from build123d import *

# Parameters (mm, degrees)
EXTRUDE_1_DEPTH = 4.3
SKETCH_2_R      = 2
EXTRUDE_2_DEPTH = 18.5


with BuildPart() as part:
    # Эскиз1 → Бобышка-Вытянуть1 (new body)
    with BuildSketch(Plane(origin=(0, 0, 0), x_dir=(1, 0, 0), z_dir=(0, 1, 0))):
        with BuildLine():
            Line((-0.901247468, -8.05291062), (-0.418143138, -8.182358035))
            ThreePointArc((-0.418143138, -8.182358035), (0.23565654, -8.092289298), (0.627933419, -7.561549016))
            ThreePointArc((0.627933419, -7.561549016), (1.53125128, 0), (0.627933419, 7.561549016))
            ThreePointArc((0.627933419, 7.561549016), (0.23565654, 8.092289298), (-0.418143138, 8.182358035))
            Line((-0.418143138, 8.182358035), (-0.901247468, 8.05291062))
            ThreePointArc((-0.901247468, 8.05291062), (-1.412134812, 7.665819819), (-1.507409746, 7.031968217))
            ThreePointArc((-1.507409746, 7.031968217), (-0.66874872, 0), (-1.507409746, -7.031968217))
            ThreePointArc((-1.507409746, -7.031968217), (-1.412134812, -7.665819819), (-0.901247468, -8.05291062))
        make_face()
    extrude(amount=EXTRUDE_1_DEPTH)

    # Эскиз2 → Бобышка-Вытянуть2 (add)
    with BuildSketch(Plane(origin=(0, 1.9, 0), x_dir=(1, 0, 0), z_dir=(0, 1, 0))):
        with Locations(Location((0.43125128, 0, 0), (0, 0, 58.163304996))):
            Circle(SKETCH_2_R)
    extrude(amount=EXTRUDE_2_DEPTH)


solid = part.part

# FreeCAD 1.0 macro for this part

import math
import FreeCAD as App
import Part
import Sketcher
from FreeCAD import Vector
Q = App.Units.Quantity

doc = App.newDocument("Part")
params = doc.addObject("Spreadsheet::Sheet", "Params")
for row, (alias, value) in enumerate([
    ("sketch1_radius", "32.1 mm"),
    ("sketch1_radius2", "29.9 mm"),
    ("sketch1_radius3", "0.85 mm"),
    ("pad1_length", "4.3 mm"),
    ("sketch2_diameter", "4 mm"),
    ("pad2_length", "18.5 mm"),
], start=1):
    params.set(f"A{row}", alias)
    params.set(f"B{row}", "=" + value)
    params.setAlias(f"B{row}", alias)

body = doc.addObject("PartDesign::Body", "Body")

# Sketch on XZ plane
sketch1 = body.newObject("Sketcher::SketchObject", "Sketch")
sketch1.AttachmentSupport = (doc.getObject("XZ_Plane"), [""])
sketch1.MapMode = "FlatFace"
sketch1.addGeometry(Part.LineSegment(Vector(-0.9, 8.1, 0), Vector(-0.4, 8.2, 0)), False)
sketch1.addGeometry(Part.ArcOfCircle(Part.Circle(Vector(-0.2, 7.4, 0), Vector(0, 0, 1), 0.9), math.radians(14), math.radians(105)), False)
sketch1.addGeometry(Part.ArcOfCircle(Part.Circle(Vector(-30.6, 0, 0), Vector(0, 0, 1), 32.1), math.radians(-14), math.radians(14)), False)
sketch1.addGeometry(Part.ArcOfCircle(Part.Circle(Vector(-0.2, -7.4, 0), Vector(0, 0, 1), 0.9), math.radians(-105), math.radians(-14)), False)
sketch1.addGeometry(Part.LineSegment(Vector(-0.4, -8.2, 0), Vector(-0.9, -8.1, 0)), False)
sketch1.addGeometry(Part.ArcOfCircle(Part.Circle(Vector(-0.7, -7.2, 0), Vector(0, 0, 1), 0.9), math.radians(166), math.radians(255)), False)
sketch1.addGeometry(Part.ArcOfCircle(Part.Circle(Vector(-30.6, 0, 0), Vector(0, 0, 1), 29.9), math.radians(-14), math.radians(14)), False)
sketch1.addGeometry(Part.ArcOfCircle(Part.Circle(Vector(-0.7, 7.2, 0), Vector(0, 0, 1), 0.9), math.radians(105), math.radians(194)), False)
sketch1.addConstraint(Sketcher.Constraint("Tangent", 0, 2, 1, 2))
sketch1.addConstraint(Sketcher.Constraint("Tangent", 1, 1, 2, 2))
sketch1.addConstraint(Sketcher.Constraint("Tangent", 2, 1, 3, 2))
sketch1.addConstraint(Sketcher.Constraint("Tangent", 3, 1, 4, 1))
sketch1.addConstraint(Sketcher.Constraint("Tangent", 4, 2, 5, 2))
sketch1.addConstraint(Sketcher.Constraint("Tangent", 5, 1, 6, 1))
sketch1.addConstraint(Sketcher.Constraint("Tangent", 6, 2, 7, 2))
sketch1.addConstraint(Sketcher.Constraint("Tangent", 7, 1, 0, 1))
sketch1.addConstraint(Sketcher.Constraint("Coincident", 6, 3, 2, 3))
sketch1.addConstraint(Sketcher.Constraint("Equal", 1, 3))
sketch1.addConstraint(Sketcher.Constraint("Equal", 3, 5))
sketch1.addConstraint(Sketcher.Constraint("Equal", 5, 7))
sketch1.addConstraint(Sketcher.Constraint("Symmetric", 1, 3, 3, 3, -1))
sketch1.addConstraint(Sketcher.Constraint("Vertical", 5, 3, 7, 3))
sketch1.addConstraint(Sketcher.Constraint("Radius", 2, Q("32.1 mm")))
sketch1.addConstraint(Sketcher.Constraint("Radius", 6, Q("29.9 mm")))
sketch1.addConstraint(Sketcher.Constraint("Angle", 0, Q("15 deg")))
sketch1.addConstraint(Sketcher.Constraint("Radius", 1, Q("0.85 mm")))
sketch1.addConstraint(Sketcher.Constraint("DistanceX", 2, 3, 1, 3, Q("30.370602 mm")))
sketch1.addConstraint(Sketcher.Constraint("DistanceX", 2, 3, -1, 1, Q("30.568749 mm")))
sketch1.setExpression("Constraints[14]", "Params.sketch1_radius")
sketch1.setExpression("Constraints[15]", "Params.sketch1_radius2")
sketch1.setExpression("Constraints[17]", "Params.sketch1_radius3")
pad1 = body.newObject("PartDesign::Pad", "Pad")
pad1.Profile = sketch1
pad1.setExpression("Length", "Params.pad1_length")
pad1.Reversed = True

# Sketch on XZ plane
sketch2 = body.newObject("Sketcher::SketchObject", "Sketch001")
sketch2.AttachmentSupport = (doc.getObject("XZ_Plane"), [""])
sketch2.MapMode = "FlatFace"
sketch2.AttachmentOffset = App.Placement(Vector(0, 0, -1.9), App.Rotation())
sketch2.addGeometry(Part.Circle(Vector(0.4, 0, 0), Vector(0, 0, 1), 2), False)
sketch2.addConstraint(Sketcher.Constraint("PointOnObject", 0, 3, -1))
sketch2.addConstraint(Sketcher.Constraint("Diameter", 0, Q("4 mm")))
sketch2.addConstraint(Sketcher.Constraint("DistanceX", -1, 1, 0, 3, Q("0.431251 mm")))
sketch2.setExpression("Constraints[1]", "Params.sketch2_diameter")
pad2 = body.newObject("PartDesign::Pad", "Pad001")
pad2.Profile = sketch2
pad2.setExpression("Length", "Params.pad2_length")
pad2.Reversed = True

doc.recompute()
